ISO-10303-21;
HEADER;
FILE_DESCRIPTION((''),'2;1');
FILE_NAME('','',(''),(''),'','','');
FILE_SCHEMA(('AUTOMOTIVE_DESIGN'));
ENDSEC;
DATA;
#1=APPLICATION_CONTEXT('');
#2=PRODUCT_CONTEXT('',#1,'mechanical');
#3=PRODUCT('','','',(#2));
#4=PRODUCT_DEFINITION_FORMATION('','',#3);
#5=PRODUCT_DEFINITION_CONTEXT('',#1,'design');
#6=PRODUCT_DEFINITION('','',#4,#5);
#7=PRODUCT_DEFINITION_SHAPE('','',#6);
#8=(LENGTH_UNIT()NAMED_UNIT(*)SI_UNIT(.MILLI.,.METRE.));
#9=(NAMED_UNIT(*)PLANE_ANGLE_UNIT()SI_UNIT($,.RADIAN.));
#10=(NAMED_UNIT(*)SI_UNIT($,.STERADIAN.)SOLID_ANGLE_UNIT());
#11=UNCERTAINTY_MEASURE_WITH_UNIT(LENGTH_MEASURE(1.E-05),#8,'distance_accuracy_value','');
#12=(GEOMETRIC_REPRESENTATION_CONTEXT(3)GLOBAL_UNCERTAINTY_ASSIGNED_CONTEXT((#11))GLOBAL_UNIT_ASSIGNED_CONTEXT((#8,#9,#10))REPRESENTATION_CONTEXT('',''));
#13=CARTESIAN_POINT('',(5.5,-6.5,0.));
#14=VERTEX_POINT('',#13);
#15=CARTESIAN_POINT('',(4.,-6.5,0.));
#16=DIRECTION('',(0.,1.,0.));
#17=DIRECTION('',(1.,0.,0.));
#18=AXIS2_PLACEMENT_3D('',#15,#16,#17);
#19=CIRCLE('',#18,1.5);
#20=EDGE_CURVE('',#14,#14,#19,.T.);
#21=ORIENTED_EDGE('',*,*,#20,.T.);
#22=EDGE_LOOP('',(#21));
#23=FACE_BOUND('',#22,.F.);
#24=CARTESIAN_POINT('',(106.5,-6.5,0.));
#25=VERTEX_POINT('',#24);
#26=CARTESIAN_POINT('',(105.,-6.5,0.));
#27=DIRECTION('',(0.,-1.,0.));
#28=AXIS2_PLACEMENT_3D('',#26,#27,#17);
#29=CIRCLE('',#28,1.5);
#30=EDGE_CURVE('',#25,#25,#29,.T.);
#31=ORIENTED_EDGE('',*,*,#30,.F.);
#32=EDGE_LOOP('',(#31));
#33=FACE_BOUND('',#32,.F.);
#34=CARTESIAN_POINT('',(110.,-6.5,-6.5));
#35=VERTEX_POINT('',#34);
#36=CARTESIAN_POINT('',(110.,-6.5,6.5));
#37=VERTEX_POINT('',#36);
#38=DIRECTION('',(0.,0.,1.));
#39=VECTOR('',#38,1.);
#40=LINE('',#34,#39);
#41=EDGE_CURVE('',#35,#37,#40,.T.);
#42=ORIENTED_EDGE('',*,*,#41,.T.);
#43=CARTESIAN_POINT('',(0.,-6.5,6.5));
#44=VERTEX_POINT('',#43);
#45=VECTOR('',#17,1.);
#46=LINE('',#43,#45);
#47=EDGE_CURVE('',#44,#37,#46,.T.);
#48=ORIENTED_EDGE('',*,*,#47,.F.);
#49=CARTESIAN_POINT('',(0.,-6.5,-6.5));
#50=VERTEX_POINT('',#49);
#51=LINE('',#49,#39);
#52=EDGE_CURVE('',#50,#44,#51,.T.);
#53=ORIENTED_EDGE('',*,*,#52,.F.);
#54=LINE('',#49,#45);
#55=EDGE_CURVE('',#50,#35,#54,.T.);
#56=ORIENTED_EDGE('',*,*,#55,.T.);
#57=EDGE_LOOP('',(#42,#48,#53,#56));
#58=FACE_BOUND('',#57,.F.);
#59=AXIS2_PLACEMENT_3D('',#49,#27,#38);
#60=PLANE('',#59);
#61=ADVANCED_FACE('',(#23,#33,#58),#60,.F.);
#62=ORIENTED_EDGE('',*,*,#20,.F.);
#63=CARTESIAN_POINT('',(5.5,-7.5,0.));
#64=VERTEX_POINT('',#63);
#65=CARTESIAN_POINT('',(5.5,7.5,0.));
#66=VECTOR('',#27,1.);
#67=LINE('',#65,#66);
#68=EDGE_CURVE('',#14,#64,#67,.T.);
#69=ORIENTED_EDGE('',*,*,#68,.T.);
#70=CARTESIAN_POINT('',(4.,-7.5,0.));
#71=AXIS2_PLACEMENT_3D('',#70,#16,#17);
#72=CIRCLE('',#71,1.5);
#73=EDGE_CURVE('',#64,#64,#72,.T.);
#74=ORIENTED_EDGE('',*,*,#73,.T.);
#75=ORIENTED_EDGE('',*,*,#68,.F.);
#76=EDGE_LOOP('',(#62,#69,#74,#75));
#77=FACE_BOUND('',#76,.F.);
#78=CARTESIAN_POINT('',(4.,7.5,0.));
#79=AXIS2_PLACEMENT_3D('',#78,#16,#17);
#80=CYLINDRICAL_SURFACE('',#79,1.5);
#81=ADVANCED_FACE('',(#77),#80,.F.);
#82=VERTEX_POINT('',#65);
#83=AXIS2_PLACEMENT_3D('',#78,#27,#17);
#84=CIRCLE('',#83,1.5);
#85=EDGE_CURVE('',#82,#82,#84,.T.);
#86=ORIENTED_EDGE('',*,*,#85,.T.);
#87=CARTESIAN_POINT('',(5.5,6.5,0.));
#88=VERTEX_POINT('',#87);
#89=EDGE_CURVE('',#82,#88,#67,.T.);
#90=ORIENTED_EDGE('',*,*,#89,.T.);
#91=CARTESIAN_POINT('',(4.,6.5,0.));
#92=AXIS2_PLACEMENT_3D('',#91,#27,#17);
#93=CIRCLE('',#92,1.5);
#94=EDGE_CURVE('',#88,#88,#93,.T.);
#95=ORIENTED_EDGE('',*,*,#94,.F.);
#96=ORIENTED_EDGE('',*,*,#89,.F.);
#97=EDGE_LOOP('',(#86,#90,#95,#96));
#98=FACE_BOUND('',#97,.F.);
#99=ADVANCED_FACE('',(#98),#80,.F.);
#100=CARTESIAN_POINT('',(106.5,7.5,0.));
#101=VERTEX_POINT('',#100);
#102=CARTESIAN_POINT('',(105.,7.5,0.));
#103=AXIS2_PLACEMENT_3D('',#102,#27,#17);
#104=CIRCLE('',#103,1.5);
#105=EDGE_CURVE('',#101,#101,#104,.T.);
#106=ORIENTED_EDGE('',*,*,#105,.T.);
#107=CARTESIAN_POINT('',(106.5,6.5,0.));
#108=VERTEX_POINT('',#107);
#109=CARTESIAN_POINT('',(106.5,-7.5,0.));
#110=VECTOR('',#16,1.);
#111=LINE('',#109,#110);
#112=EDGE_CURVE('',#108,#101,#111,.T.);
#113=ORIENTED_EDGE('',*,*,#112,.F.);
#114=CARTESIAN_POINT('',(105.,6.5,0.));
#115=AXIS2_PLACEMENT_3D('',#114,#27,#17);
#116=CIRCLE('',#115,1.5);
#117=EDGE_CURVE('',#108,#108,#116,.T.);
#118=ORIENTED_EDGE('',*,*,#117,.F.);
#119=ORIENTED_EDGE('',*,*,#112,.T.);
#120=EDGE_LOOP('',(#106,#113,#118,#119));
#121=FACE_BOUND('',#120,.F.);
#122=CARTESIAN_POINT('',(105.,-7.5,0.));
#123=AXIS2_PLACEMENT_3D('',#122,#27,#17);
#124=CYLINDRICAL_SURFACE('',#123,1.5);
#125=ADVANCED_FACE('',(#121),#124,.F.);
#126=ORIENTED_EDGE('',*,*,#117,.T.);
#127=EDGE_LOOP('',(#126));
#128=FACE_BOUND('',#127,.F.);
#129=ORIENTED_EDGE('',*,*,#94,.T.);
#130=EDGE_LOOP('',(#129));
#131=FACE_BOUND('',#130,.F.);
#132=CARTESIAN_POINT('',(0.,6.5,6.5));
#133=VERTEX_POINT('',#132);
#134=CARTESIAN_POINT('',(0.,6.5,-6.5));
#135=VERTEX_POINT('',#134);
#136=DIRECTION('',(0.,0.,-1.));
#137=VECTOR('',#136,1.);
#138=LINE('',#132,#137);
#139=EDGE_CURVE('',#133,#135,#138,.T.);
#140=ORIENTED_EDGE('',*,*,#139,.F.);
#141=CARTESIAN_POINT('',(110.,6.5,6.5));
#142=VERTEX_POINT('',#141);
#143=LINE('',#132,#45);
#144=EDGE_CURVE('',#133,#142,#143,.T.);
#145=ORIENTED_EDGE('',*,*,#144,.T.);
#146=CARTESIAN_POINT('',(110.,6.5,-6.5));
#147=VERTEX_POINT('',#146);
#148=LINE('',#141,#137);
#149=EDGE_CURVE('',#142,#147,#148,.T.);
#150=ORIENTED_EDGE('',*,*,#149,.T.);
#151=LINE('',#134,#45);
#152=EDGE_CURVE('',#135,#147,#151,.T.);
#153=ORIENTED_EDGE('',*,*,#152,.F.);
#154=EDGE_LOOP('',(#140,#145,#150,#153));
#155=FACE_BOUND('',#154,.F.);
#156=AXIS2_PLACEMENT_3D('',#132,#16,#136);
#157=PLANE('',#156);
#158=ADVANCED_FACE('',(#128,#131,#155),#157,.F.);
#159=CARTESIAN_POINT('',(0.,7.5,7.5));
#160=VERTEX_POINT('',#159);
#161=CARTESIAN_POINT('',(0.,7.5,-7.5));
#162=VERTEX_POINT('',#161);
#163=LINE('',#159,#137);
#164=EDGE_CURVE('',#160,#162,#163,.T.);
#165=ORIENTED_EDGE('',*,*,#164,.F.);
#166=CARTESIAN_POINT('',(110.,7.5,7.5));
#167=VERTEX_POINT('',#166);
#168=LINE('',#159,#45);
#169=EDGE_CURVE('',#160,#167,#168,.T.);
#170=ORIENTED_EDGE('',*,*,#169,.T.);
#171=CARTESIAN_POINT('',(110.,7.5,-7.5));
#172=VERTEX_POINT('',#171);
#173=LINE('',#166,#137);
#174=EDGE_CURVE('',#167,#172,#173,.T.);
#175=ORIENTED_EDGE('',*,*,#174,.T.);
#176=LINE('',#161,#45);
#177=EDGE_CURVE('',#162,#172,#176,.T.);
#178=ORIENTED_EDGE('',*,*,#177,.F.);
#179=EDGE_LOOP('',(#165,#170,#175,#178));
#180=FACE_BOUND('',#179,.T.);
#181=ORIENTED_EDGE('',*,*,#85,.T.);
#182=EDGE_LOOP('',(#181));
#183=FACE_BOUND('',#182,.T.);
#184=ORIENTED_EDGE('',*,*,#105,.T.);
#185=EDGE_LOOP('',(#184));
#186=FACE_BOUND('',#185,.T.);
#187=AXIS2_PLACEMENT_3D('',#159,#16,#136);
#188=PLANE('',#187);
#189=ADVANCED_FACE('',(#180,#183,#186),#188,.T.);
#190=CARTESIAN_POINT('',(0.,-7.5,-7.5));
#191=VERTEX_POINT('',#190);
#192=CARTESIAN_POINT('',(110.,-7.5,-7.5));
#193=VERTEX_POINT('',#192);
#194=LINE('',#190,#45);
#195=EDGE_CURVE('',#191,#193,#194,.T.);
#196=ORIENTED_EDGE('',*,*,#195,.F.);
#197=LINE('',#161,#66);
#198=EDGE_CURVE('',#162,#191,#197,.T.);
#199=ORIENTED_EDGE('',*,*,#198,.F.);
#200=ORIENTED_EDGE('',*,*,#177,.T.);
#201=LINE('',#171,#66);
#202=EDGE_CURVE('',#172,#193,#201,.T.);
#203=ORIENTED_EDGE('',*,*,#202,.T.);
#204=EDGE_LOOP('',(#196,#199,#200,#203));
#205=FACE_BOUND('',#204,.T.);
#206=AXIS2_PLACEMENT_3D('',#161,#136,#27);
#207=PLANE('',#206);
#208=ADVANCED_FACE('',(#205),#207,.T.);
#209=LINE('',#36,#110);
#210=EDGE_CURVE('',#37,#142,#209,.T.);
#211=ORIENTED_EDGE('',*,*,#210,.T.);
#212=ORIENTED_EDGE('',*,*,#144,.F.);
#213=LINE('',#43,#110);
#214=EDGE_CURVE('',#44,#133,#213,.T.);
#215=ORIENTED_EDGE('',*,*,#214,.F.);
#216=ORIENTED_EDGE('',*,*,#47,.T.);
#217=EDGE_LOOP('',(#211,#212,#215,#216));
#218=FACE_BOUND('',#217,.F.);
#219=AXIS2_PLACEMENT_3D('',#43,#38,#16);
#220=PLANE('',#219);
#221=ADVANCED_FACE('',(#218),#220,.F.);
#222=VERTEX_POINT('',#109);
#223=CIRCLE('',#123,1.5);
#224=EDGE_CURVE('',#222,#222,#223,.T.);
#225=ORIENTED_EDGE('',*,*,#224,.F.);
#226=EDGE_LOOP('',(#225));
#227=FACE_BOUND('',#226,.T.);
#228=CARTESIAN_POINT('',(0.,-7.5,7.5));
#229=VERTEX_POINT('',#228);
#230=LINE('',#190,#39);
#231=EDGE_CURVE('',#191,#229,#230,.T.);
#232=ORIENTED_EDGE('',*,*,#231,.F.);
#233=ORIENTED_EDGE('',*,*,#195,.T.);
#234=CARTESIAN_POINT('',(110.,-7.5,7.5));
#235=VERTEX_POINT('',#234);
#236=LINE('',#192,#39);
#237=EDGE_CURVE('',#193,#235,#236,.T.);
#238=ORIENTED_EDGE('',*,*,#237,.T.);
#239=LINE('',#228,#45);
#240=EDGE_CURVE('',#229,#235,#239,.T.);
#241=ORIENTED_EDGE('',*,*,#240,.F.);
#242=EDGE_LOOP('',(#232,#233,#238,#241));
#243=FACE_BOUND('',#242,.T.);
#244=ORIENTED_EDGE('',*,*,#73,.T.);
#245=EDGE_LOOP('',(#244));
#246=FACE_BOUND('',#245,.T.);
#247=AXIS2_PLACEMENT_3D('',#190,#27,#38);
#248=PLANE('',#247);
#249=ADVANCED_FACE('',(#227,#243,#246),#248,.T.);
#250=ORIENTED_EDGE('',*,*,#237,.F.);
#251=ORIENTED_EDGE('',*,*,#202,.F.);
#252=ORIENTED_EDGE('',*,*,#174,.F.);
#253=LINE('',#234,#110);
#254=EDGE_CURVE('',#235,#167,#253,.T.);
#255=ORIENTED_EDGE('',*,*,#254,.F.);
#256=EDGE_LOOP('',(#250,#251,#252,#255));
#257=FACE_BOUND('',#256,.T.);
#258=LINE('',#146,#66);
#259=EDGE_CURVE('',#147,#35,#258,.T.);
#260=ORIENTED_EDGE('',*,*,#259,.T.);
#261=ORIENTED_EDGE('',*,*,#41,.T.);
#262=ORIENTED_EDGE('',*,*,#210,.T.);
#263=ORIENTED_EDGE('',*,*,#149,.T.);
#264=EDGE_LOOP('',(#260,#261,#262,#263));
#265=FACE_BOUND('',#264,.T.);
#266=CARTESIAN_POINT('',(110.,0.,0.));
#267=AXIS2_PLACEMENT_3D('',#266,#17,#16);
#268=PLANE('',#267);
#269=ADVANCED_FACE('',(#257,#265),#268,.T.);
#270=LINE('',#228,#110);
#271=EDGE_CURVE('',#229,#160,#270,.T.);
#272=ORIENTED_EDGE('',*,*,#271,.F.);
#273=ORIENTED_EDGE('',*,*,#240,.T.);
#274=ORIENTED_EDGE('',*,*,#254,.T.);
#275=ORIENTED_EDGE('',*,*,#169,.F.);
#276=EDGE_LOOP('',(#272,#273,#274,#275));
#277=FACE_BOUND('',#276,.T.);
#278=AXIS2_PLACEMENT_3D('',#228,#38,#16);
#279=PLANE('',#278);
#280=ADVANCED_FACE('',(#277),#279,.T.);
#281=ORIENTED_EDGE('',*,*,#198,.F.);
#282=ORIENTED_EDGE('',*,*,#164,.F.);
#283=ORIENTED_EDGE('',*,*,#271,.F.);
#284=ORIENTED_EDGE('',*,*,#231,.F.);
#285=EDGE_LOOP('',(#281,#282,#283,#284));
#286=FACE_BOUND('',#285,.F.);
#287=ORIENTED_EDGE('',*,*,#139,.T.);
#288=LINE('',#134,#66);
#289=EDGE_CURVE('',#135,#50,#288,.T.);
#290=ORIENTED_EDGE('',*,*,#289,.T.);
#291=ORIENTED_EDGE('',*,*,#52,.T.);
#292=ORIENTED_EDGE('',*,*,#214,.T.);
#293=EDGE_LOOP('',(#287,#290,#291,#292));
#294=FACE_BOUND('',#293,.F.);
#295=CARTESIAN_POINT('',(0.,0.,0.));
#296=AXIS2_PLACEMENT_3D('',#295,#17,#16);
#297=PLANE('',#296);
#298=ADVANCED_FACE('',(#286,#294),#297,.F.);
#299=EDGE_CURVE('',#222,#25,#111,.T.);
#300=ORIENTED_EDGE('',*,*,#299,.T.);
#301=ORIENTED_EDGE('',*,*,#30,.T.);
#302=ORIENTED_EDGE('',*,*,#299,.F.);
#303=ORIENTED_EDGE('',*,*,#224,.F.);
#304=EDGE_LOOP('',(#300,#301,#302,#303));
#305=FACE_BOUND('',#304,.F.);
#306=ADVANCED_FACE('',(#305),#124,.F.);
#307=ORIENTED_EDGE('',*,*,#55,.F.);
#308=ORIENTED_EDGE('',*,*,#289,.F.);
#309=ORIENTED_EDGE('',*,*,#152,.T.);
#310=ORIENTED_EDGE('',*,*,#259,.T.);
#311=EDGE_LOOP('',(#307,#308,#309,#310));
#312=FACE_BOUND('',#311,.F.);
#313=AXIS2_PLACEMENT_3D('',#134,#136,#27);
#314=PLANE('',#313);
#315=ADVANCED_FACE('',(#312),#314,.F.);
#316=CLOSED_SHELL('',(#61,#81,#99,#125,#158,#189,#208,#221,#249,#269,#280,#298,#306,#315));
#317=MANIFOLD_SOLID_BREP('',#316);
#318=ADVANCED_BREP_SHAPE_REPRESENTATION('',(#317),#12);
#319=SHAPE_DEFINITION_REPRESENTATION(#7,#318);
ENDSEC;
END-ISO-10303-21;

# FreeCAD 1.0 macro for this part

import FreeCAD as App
import Part
import Sketcher

V = App.Vector

doc = App.newDocument("Part")
body = doc.addObject("PartDesign::Body", "Body")

# Sketch on YZ plane
sketch1 = body.newObject("Sketcher::SketchObject", "Sketch")
sketch1.AttachmentSupport = (doc.getObject("YZ_Plane"), [""])
sketch1.MapMode = "FlatFace"
sketch1.addGeometry(Part.LineSegment(V(7.5, 7.5, 0), V(-7.5, 7.5, 0)), False)
sketch1.addGeometry(Part.LineSegment(V(-7.5, 7.5, 0), V(-7.5, -7.5, 0)), False)
sketch1.addGeometry(Part.LineSegment(V(-7.5, -7.5, 0), V(7.5, -7.5, 0)), False)
sketch1.addGeometry(Part.LineSegment(V(7.5, -7.5, 0), V(7.5, 7.5, 0)), False)
sketch1.addGeometry(Part.LineSegment(V(-6.5, -6.5, 0), V(-6.5, 6.5, 0)), False)
sketch1.addGeometry(Part.LineSegment(V(-6.5, 6.5, 0), V(6.5, 6.5, 0)), False)
sketch1.addGeometry(Part.LineSegment(V(6.5, 6.5, 0), V(6.5, -6.5, 0)), False)
sketch1.addGeometry(Part.LineSegment(V(6.5, -6.5, 0), V(-6.5, -6.5, 0)), False)
sketch1.addConstraint(Sketcher.Constraint("Coincident", 0, 2, 1, 1))
sketch1.addConstraint(Sketcher.Constraint("Coincident", 1, 2, 2, 1))
sketch1.addConstraint(Sketcher.Constraint("Coincident", 2, 2, 3, 1))
sketch1.addConstraint(Sketcher.Constraint("Coincident", 3, 2, 0, 1))
sketch1.addConstraint(Sketcher.Constraint("Coincident", 4, 2, 5, 1))
sketch1.addConstraint(Sketcher.Constraint("Coincident", 5, 2, 6, 1))
sketch1.addConstraint(Sketcher.Constraint("Coincident", 6, 2, 7, 1))
sketch1.addConstraint(Sketcher.Constraint("Coincident", 7, 2, 4, 1))
sketch1.addConstraint(Sketcher.Constraint("Horizontal", 0))
sketch1.addConstraint(Sketcher.Constraint("Vertical", 1))
sketch1.addConstraint(Sketcher.Constraint("Horizontal", 2))
sketch1.addConstraint(Sketcher.Constraint("Vertical", 3))
sketch1.addConstraint(Sketcher.Constraint("Vertical", 4))
sketch1.addConstraint(Sketcher.Constraint("Horizontal", 5))
sketch1.addConstraint(Sketcher.Constraint("Vertical", 6))
sketch1.addConstraint(Sketcher.Constraint("Horizontal", 7))
sketch1.addConstraint(Sketcher.Constraint("Symmetric", 0, 2, 2, 2, -1, 1))
sketch1.addConstraint(Sketcher.Constraint("Symmetric", 4, 2, 6, 2, -1, 1))
sketch1.addConstraint(Sketcher.Constraint("Equal", 2, 1))
sketch1.addConstraint(Sketcher.Constraint("Equal", 7, 4))
sketch1.addConstraint(Sketcher.Constraint("DistanceX", 0, 2, 0, 1, 15.0))
sketch1.addConstraint(Sketcher.Constraint("DistanceX", 5, 1, 5, 2, 13.0))
pad1 = body.newObject("PartDesign::Pad", "Pad")
pad1.Profile = sketch1
pad1.Length = 110

# Sketch on XZ plane
sketch2 = body.newObject("Sketcher::SketchObject", "Sketch001")
sketch2.AttachmentSupport = (doc.getObject("XZ_Plane"), [""])
sketch2.MapMode = "FlatFace"
sketch2.AttachmentOffset = App.Placement(V(0, 0, -7.5), App.Rotation())
sketch2.addGeometry(Part.Circle(V(4, 0, 0), V(0, 0, 1), 1.5), False)
sketch2.addConstraint(Sketcher.Constraint("PointOnObject", 0, 3, -1))
sketch2.addConstraint(Sketcher.Constraint("Diameter", 0, 3.0))
sketch2.addConstraint(Sketcher.Constraint("DistanceX", -1, 1, 0, 3, 4.0))
pocket1 = body.newObject("PartDesign::Pocket", "Pocket")
pocket1.Profile = sketch2
pocket1.Type = "ThroughAll"
pocket1.Reversed = True

# Sketch on XZ plane
sketch3 = body.newObject("Sketcher::SketchObject", "Sketch002")
sketch3.AttachmentSupport = (doc.getObject("XZ_Plane"), [""])
sketch3.MapMode = "FlatFace"
sketch3.AttachmentOffset = App.Placement(V(0, 0, 7.5), App.Rotation())
sketch3.addGeometry(Part.Circle(V(105, 0, 0), V(0, 0, 1), 1.5), False)
sketch3.addConstraint(Sketcher.Constraint("PointOnObject", 0, 3, -1))
sketch3.addConstraint(Sketcher.Constraint("Diameter", 0, 3.0))
sketch3.addConstraint(Sketcher.Constraint("DistanceX", -1, 1, 0, 3, 105.0))
pocket2 = body.newObject("PartDesign::Pocket", "Pocket001")
pocket2.Profile = sketch3
pocket2.Type = "ThroughAll"

doc.recompute()
